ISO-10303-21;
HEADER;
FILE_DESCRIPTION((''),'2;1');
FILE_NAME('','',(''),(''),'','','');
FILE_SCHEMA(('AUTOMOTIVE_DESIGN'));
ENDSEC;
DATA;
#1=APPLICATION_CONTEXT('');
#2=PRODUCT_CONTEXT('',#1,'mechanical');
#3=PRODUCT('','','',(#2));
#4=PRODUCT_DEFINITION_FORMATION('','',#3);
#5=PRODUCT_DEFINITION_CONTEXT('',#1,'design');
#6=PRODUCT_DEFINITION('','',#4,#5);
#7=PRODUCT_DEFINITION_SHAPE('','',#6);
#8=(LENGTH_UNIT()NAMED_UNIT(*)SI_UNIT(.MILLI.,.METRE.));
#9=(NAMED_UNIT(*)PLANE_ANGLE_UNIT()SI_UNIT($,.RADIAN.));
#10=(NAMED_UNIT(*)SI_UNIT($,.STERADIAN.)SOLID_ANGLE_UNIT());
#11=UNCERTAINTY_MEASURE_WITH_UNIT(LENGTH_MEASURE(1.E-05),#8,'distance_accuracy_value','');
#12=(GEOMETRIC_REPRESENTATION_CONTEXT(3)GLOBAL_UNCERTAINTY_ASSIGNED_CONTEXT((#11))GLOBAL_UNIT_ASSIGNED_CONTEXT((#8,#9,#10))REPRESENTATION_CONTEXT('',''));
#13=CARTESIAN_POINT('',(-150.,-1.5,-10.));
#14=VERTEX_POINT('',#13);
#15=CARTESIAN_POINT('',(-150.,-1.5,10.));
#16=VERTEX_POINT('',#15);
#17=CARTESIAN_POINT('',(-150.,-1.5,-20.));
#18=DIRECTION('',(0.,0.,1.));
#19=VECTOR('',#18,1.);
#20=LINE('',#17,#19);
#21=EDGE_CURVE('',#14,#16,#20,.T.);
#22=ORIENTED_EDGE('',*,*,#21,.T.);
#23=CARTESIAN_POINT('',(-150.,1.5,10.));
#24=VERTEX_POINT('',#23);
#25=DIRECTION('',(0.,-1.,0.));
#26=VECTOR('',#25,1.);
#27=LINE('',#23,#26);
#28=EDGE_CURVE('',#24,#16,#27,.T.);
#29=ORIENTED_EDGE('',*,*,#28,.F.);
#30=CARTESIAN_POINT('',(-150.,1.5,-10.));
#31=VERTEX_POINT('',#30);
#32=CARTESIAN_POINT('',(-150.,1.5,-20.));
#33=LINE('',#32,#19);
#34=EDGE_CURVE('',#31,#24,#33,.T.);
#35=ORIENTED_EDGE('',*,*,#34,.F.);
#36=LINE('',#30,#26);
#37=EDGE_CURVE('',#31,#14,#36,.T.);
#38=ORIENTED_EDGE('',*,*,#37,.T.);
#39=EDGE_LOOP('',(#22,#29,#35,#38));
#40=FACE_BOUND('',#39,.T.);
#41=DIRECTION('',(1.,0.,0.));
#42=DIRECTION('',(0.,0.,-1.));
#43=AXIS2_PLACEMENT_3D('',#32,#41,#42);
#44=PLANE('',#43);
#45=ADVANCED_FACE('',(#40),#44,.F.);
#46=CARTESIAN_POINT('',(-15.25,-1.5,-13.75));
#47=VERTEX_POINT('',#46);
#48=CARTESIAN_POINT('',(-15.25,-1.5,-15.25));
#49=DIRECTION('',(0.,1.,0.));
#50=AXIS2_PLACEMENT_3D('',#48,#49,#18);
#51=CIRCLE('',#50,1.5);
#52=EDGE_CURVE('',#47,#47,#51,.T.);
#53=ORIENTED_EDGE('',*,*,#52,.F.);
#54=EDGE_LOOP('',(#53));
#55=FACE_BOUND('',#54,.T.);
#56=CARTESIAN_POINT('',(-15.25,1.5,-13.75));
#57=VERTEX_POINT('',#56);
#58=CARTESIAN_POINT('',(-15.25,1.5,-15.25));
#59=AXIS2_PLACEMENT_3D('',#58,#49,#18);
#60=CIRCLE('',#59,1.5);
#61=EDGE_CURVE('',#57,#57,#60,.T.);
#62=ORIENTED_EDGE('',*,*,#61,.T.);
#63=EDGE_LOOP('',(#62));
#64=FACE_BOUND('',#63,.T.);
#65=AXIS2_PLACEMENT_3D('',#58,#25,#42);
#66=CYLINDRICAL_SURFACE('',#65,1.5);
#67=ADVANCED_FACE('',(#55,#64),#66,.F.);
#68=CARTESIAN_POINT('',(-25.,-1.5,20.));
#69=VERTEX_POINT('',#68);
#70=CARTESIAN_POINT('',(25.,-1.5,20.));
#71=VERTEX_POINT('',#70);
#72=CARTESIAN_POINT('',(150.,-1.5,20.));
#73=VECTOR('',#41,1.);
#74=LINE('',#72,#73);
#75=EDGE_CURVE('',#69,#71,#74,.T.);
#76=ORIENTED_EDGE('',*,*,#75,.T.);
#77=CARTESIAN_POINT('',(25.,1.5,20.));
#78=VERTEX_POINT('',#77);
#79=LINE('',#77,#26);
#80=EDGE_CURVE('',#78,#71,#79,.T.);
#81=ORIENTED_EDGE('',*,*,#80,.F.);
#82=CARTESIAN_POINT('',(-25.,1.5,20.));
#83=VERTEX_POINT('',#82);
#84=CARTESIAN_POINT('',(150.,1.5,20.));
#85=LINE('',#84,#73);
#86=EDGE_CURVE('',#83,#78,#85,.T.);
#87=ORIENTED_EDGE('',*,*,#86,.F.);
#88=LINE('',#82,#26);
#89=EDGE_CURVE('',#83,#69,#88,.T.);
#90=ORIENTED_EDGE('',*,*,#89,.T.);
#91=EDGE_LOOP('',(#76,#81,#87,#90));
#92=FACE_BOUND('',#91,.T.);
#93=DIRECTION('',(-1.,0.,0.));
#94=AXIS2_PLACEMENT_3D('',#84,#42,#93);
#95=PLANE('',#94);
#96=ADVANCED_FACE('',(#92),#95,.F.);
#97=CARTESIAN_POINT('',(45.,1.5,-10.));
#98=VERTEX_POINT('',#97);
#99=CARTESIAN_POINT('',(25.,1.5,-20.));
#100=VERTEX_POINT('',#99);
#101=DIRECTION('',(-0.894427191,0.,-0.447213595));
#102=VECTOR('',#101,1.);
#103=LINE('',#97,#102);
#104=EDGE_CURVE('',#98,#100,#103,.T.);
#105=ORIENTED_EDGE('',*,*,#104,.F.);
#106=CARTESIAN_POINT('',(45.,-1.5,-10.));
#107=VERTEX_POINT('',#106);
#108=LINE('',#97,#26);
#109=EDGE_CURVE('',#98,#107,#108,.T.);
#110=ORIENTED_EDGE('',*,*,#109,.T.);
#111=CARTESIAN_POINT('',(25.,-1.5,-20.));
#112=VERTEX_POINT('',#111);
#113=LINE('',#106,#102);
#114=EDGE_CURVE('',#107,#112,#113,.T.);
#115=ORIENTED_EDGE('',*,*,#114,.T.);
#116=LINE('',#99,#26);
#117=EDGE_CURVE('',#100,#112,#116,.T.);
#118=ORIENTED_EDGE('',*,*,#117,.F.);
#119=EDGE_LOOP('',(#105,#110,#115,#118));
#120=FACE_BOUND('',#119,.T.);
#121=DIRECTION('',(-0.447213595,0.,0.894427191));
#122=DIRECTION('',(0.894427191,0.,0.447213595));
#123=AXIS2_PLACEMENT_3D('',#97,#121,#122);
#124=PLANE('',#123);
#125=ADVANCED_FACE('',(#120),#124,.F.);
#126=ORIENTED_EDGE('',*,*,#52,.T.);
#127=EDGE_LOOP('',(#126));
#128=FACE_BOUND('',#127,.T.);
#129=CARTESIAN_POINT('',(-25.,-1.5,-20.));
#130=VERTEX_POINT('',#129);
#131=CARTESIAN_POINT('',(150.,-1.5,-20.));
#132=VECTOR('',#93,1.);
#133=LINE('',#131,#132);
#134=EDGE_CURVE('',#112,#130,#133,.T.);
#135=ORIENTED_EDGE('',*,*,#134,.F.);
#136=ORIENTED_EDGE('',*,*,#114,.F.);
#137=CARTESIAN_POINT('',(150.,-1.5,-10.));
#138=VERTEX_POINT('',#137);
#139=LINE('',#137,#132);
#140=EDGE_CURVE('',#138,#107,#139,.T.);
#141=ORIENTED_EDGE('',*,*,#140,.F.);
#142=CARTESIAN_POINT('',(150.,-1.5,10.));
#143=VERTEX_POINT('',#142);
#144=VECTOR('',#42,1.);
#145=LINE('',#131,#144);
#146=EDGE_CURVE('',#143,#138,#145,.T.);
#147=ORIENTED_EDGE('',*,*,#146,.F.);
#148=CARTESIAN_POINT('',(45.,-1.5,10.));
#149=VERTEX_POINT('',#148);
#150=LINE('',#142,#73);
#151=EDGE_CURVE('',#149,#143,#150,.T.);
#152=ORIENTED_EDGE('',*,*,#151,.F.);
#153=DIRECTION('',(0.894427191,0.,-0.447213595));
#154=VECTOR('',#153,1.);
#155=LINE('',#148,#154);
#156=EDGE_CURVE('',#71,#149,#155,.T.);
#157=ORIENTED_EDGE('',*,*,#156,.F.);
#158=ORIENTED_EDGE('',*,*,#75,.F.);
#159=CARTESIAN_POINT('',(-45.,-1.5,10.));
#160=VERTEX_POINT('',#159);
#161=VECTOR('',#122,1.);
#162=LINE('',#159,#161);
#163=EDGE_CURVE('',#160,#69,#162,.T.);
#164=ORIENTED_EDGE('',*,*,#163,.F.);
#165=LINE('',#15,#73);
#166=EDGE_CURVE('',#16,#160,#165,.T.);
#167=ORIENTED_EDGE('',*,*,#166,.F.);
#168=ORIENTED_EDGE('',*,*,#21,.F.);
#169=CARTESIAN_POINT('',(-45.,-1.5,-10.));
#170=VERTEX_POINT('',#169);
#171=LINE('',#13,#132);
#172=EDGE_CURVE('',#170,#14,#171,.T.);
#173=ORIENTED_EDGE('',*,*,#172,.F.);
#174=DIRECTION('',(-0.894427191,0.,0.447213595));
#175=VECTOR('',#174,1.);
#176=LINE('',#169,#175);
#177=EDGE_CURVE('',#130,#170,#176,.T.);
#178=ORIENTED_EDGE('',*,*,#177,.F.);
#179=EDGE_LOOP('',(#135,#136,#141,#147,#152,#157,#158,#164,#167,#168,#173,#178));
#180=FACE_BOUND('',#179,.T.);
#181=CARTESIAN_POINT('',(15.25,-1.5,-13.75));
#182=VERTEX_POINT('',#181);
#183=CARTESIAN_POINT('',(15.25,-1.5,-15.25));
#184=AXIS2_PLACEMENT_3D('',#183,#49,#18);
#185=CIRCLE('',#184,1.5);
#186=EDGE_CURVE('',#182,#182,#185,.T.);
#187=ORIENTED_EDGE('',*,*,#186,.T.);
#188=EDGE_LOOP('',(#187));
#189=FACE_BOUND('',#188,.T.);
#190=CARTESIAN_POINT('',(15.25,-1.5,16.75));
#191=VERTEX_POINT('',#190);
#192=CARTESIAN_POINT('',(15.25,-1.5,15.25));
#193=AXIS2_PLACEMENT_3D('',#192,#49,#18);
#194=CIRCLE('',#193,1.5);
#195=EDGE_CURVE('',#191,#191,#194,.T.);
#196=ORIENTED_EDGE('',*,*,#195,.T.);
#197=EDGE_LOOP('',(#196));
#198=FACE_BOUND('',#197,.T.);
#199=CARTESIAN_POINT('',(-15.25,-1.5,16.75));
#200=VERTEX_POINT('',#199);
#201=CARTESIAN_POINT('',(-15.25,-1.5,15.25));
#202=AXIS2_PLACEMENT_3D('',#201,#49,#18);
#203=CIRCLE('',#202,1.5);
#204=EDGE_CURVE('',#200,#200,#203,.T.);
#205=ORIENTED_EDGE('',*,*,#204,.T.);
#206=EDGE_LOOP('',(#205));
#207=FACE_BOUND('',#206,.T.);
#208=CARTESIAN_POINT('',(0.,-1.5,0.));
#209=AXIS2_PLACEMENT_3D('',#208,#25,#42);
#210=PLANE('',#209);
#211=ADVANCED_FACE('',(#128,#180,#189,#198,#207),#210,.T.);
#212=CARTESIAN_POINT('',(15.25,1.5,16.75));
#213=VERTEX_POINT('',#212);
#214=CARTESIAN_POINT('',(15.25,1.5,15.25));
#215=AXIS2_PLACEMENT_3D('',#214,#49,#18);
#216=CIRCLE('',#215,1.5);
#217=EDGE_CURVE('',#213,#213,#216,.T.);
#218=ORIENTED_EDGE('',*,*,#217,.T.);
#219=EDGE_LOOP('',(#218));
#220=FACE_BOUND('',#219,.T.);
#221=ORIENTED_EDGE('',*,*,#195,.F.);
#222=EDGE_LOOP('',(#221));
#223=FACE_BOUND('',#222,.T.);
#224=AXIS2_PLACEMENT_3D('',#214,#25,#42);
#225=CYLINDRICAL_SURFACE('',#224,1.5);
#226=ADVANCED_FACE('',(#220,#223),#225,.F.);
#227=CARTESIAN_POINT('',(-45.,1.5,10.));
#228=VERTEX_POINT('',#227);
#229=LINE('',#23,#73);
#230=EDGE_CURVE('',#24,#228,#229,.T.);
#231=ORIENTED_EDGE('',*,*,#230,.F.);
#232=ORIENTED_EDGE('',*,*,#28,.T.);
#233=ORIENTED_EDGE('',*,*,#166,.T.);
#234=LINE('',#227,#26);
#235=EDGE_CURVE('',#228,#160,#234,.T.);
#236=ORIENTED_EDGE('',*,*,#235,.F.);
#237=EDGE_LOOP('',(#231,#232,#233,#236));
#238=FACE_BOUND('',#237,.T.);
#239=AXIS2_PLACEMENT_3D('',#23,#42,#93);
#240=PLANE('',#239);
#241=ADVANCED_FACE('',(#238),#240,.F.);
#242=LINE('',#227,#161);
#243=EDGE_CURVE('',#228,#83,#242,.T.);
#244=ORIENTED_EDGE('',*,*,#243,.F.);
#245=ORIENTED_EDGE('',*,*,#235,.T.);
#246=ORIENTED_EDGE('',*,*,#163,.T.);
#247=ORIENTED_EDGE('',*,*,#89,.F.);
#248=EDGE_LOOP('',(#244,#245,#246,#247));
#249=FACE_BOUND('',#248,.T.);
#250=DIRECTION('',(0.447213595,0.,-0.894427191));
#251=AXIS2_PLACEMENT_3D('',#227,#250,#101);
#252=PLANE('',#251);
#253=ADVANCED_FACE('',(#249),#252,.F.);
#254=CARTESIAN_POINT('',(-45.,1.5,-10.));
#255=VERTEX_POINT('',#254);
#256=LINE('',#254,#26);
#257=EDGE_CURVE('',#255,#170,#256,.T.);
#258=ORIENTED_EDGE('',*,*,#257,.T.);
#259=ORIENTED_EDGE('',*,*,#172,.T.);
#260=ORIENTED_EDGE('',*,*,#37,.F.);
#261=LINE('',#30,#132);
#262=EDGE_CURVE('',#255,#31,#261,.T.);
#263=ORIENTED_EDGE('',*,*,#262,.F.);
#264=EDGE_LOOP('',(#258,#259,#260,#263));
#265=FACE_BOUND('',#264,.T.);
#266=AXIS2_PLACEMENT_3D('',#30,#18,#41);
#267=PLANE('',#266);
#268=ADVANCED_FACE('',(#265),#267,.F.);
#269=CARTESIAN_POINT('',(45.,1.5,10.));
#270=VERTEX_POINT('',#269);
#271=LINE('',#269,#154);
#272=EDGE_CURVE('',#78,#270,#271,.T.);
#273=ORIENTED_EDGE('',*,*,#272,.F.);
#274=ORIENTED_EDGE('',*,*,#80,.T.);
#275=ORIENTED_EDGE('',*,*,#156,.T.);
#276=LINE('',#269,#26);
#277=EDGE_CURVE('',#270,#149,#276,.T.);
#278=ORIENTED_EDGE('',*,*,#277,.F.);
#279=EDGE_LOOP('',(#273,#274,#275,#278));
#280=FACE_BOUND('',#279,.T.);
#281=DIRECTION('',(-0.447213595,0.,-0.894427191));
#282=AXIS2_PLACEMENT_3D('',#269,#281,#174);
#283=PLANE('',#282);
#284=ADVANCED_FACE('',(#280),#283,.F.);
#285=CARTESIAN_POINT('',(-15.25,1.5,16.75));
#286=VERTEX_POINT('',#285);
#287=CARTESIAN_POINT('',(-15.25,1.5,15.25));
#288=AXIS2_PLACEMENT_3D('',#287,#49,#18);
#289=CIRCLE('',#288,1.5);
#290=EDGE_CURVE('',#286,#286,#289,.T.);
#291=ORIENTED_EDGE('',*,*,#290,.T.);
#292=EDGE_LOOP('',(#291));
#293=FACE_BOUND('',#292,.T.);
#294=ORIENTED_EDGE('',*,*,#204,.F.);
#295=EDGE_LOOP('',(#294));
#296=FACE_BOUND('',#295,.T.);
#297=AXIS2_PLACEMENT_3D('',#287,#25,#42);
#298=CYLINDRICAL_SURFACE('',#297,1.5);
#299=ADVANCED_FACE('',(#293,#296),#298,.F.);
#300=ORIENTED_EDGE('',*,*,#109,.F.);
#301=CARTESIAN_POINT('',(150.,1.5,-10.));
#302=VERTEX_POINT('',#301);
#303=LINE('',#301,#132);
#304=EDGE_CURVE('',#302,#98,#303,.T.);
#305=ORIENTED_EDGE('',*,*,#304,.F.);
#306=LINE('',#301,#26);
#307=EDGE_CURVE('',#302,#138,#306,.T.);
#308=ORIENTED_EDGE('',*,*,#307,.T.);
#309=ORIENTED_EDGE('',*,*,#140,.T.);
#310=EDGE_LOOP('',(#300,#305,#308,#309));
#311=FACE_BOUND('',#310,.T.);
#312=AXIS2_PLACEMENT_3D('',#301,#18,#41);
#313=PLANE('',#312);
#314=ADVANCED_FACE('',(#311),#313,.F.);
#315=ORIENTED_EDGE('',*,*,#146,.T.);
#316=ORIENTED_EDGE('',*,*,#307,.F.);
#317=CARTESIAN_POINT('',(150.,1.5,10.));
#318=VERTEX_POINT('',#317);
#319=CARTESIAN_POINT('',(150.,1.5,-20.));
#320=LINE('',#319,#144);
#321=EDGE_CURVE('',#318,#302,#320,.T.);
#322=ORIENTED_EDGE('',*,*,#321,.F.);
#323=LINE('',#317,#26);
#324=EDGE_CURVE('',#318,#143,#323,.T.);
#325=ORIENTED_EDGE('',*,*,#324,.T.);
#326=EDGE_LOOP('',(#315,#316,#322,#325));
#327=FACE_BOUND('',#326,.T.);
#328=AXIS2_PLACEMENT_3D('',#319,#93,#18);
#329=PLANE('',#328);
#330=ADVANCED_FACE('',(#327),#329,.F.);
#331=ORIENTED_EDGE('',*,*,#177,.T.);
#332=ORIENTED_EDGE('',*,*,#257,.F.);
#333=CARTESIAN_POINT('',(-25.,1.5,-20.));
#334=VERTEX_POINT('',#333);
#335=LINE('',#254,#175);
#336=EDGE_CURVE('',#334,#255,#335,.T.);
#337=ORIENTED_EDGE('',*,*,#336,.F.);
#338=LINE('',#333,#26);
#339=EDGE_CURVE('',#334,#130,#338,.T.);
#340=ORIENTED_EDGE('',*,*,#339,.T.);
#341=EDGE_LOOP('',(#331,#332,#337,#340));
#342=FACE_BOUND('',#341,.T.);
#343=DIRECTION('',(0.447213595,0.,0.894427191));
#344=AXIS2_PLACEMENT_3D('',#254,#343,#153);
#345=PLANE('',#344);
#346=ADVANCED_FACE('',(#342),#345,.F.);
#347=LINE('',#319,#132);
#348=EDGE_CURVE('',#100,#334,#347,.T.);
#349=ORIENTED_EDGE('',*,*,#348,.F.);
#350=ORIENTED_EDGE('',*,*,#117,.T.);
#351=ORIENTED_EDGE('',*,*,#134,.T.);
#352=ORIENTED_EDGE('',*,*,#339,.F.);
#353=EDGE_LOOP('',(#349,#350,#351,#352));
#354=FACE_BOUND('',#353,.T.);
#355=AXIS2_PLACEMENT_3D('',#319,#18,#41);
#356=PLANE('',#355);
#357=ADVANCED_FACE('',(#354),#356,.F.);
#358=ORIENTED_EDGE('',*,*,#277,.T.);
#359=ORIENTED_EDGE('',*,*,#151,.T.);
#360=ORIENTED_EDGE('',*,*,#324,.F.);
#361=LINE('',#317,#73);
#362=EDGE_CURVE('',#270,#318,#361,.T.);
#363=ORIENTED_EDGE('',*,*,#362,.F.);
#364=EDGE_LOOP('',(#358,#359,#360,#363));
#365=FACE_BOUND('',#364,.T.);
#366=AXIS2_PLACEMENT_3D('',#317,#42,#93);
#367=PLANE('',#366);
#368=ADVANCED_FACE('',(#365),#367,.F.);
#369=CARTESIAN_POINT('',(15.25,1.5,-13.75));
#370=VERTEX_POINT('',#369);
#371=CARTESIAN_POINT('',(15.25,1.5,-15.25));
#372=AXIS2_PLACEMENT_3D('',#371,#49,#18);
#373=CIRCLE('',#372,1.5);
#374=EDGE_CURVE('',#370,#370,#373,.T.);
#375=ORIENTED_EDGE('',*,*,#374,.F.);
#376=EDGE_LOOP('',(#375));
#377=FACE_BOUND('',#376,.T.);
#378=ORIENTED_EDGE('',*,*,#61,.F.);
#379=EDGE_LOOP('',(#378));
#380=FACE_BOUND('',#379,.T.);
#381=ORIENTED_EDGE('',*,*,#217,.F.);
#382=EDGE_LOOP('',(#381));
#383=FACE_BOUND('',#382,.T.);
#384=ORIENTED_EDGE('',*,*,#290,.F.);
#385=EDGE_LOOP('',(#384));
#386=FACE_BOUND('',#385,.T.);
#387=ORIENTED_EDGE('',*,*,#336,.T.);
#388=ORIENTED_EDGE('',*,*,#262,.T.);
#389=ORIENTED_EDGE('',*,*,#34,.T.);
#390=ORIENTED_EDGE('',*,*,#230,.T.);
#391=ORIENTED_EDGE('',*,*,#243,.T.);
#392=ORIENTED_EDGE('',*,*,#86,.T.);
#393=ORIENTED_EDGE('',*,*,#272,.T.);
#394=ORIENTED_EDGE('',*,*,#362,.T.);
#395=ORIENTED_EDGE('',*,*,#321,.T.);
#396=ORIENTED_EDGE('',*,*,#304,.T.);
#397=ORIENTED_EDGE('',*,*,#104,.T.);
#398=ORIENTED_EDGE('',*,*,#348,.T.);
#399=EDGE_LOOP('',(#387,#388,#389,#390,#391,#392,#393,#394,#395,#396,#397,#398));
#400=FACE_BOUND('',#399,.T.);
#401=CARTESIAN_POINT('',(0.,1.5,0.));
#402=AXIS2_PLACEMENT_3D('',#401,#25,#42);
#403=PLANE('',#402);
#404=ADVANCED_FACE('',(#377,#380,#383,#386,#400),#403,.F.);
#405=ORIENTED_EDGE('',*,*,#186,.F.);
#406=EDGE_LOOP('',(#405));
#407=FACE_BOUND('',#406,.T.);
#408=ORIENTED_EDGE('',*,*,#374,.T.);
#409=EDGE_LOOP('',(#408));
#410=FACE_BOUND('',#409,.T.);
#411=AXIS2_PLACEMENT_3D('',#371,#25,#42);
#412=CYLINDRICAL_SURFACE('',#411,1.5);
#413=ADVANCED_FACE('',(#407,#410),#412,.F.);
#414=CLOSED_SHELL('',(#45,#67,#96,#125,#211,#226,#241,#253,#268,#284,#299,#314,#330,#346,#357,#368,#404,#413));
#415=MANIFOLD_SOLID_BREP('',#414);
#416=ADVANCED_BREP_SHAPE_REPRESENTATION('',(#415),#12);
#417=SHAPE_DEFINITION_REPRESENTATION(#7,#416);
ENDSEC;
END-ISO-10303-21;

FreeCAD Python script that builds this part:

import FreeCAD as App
import Part
import Sketcher
from FreeCAD import Vector


def add_polygon(sketch, points):
    """Adds a closed chain of lines whose ends are joined by coincident constraints."""
    first, n = sketch.GeometryCount, len(points)
    for a, b in zip(points, points[1:] + points[:1]):
        sketch.addGeometry(Part.LineSegment(App.Vector(*a, 0), App.Vector(*b, 0)), False)
    for i in range(n):
        sketch.addConstraint(Sketcher.Constraint("Coincident", first + i, 2, first + (i + 1) % n, 1))

doc = App.newDocument("Part")
body = doc.addObject("PartDesign::Body", "Body")

# Sketch on XZ plane
sketch1 = doc.addObject("Sketcher::SketchObject", "Sketch")
body.addObject(sketch1)
sketch1.AttachmentSupport = (doc.XZ_Plane, [""])
sketch1.MapMode = "FlatFace"
add_polygon(sketch1, [(-150, -20), (-150, 20), (150, 20), (150, -20)])  # lines 0-3
sketch1.addGeometry(Part.Circle(Vector(-15.25, 15.25, 0), Vector(0, 0, 1), 1.5), False)  # 4
sketch1.addGeometry(Part.Circle(Vector(15.25, 15.25, 0), Vector(0, 0, 1), 1.5), False)  # 5
sketch1.addGeometry(Part.Circle(Vector(-15.25, -15.25, 0), Vector(0, 0, 1), 1.5), False)  # 6
sketch1.addGeometry(Part.Circle(Vector(15.25, -15.25, 0), Vector(0, 0, 1), 1.5), False)  # 7
sketch1.addConstraint([
    Sketcher.Constraint("Vertical", 0),
    Sketcher.Constraint("Horizontal", 1),
    Sketcher.Constraint("Vertical", 2),
    Sketcher.Constraint("Horizontal", 3),
    Sketcher.Constraint("Equal", 4, 5),
    Sketcher.Constraint("Equal", 5, 6),
    Sketcher.Constraint("Equal", 6, 7),
    Sketcher.Constraint("Symmetric", 5, 3, 6, 3, -1, 1),
    Sketcher.Constraint("Symmetric", 4, 3, 7, 3, -1, 1),
    Sketcher.Constraint("Symmetric", 0, 2, 2, 2, -1, 1),
    Sketcher.Constraint("Symmetric", 4, 3, 5, 3, -2),
    Sketcher.Constraint("Diameter", 4, 3.0),
    Sketcher.Constraint("DistanceX", 1, 1, 1, 2, 300.0),
    Sketcher.Constraint("DistanceY", 0, 1, 0, 2, 40.0),
    Sketcher.Constraint("DistanceX", 4, 3, 5, 3, 30.5),
    Sketcher.Constraint("DistanceY", 6, 3, 4, 3, 30.5),
])
pad1 = doc.addObject("PartDesign::Pad", "Pad")
body.addObject(pad1)
pad1.Profile = sketch1
pad1.Length = 3
pad1.Midplane = True

# Sketch on XZ plane
sketch2 = doc.addObject("Sketcher::SketchObject", "Sketch001")
body.addObject(sketch2)
sketch2.AttachmentSupport = (doc.XZ_Plane, [""])
sketch2.MapMode = "FlatFace"
sketch2.AttachmentOffset = App.Placement(Vector(0, 0, 1.5), App.Rotation())
add_polygon(sketch2, [(-150, 20), (-150, 10), (-45, 10), (-25, 20)])  # lines 0-3
add_polygon(sketch2, [(150, 20), (25, 20), (45, 10), (150, 10)])  # lines 4-7
add_polygon(sketch2, [(150, -20), (150, -10), (45, -10), (25, -20)])  # lines 8-11
add_polygon(sketch2, [(-150, -20), (-25, -20), (-45, -10), (-150, -10)])  # lines 12-15
sketch2.addConstraint([
    Sketcher.Constraint("Vertical", 0),
    Sketcher.Constraint("Horizontal", 1),
    Sketcher.Constraint("Horizontal", 3),
    Sketcher.Constraint("Horizontal", 4),
    Sketcher.Constraint("Horizontal", 6),
    Sketcher.Constraint("Vertical", 7),
    Sketcher.Constraint("Vertical", 8),
    Sketcher.Constraint("Horizontal", 9),
    Sketcher.Constraint("Horizontal", 11),
    Sketcher.Constraint("Horizontal", 12),
    Sketcher.Constraint("Horizontal", 14),
    Sketcher.Constraint("Vertical", 15),
    Sketcher.Constraint("Symmetric", 0, 2, 8, 2, -1, 1),
    Sketcher.Constraint("Symmetric", 2, 2, 10, 2, -1, 1),
    Sketcher.Constraint("Symmetric", 4, 2, 12, 2, -1, 1),
    Sketcher.Constraint("Symmetric", 5, 2, 13, 2, -1, 1),
    Sketcher.Constraint("Symmetric", 2, 2, 4, 2, -2),
    Sketcher.Constraint("Symmetric", 1, 2, 5, 2, -2),
    Sketcher.Constraint("Parallel", 2, 10),
    Sketcher.Constraint("Vertical", 7, 2, 8, 2),
    Sketcher.Constraint("Vertical", 3, 2, 14, 2),
    Sketcher.Constraint("DistanceX", 1, 1, 1, 2, 105.0),
    Sketcher.Constraint("DistanceX", 3, 2, 3, 1, 125.0),
    Sketcher.Constraint("DistanceY", 0, 2, 0, 1, 10.0),
    Sketcher.Constraint("DistanceX", 0, 2, -1, 1, 150.0),
    Sketcher.Constraint("DistanceY", -1, 1, 0, 2, 10.0),
])
pocket1 = doc.addObject("PartDesign::Pocket", "Pocket")
body.addObject(pocket1)
pocket1.Profile = sketch2
pocket1.Type = "ThroughAll"

doc.recompute()
